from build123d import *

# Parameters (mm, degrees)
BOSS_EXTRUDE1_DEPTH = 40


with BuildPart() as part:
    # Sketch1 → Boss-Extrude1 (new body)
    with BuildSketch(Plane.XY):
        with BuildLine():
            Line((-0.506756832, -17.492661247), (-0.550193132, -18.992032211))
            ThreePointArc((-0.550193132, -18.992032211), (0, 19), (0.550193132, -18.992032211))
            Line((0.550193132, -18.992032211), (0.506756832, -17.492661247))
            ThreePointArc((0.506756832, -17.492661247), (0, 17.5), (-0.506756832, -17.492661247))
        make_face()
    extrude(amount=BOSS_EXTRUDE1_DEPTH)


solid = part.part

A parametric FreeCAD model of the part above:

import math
import FreeCAD as App
import Part
import Sketcher

V = App.Vector
Q = App.Units.Quantity

doc = App.newDocument("Part")
body = doc.addObject("PartDesign::Body", "Body")

sketch1 = doc.addObject("Sketcher::SketchObject", "Sketch")
body.addObject(sketch1)
sketch1.AttachmentSupport = (doc.XY_Plane, [""])
sketch1.MapMode = "FlatFace"
sketch1.addGeometry(Part.LineSegment(V(-0.550193, -18.992032, 0), V(-0.506757, -17.492661, 0)), False)
sketch1.addGeometry(Part.ArcOfCircle(Part.Circle(V(0, 0, 0), V(0, 0, 1), 17.5), math.radians(-88.340624), math.radians(268.340624)), False)
sketch1.addGeometry(Part.LineSegment(V(0.506757, -17.492661, 0), V(0.550193, -18.992032, 0)), False)
sketch1.addGeometry(Part.ArcOfCircle(Part.Circle(V(0, 0, 0), V(0, 0, 1), 19), math.radians(-88.340624), math.radians(268.340624)), False)
sketch1.addConstraint(Sketcher.Constraint("Coincident", 0, 2, 1, 2))
sketch1.addConstraint(Sketcher.Constraint("Coincident", 1, 1, 2, 1))
sketch1.addConstraint(Sketcher.Constraint("Coincident", 2, 2, 3, 1))
sketch1.addConstraint(Sketcher.Constraint("Coincident", 3, 2, 0, 1))
sketch1.addConstraint(Sketcher.Constraint("Coincident", 1, 3, -1, 1))
sketch1.addConstraint(Sketcher.Constraint("Coincident", 3, 3, -1, 1))
sketch1.addConstraint(Sketcher.Constraint("Horizontal", 0, 2, 1, 1))
sketch1.addConstraint(Sketcher.Constraint("Horizontal", 2, 2, 3, 2))
sketch1.addConstraint(Sketcher.Constraint("Radius", 3, Q("19 mm")))
sketch1.addConstraint(Sketcher.Constraint("Radius", 1, Q("17.5 mm")))
sketch1.addConstraint(Sketcher.Constraint("DistanceY", 0, 2, -1, 1, Q("17.492661 mm")))
sketch1.addConstraint(Sketcher.Constraint("DistanceY", 2, 2, 1, 1, Q("1.499371 mm")))
pad1 = doc.addObject("PartDesign::Pad", "Pad")
body.addObject(pad1)
pad1.Profile = sketch1
pad1.Length = 40

doc.recompute()
